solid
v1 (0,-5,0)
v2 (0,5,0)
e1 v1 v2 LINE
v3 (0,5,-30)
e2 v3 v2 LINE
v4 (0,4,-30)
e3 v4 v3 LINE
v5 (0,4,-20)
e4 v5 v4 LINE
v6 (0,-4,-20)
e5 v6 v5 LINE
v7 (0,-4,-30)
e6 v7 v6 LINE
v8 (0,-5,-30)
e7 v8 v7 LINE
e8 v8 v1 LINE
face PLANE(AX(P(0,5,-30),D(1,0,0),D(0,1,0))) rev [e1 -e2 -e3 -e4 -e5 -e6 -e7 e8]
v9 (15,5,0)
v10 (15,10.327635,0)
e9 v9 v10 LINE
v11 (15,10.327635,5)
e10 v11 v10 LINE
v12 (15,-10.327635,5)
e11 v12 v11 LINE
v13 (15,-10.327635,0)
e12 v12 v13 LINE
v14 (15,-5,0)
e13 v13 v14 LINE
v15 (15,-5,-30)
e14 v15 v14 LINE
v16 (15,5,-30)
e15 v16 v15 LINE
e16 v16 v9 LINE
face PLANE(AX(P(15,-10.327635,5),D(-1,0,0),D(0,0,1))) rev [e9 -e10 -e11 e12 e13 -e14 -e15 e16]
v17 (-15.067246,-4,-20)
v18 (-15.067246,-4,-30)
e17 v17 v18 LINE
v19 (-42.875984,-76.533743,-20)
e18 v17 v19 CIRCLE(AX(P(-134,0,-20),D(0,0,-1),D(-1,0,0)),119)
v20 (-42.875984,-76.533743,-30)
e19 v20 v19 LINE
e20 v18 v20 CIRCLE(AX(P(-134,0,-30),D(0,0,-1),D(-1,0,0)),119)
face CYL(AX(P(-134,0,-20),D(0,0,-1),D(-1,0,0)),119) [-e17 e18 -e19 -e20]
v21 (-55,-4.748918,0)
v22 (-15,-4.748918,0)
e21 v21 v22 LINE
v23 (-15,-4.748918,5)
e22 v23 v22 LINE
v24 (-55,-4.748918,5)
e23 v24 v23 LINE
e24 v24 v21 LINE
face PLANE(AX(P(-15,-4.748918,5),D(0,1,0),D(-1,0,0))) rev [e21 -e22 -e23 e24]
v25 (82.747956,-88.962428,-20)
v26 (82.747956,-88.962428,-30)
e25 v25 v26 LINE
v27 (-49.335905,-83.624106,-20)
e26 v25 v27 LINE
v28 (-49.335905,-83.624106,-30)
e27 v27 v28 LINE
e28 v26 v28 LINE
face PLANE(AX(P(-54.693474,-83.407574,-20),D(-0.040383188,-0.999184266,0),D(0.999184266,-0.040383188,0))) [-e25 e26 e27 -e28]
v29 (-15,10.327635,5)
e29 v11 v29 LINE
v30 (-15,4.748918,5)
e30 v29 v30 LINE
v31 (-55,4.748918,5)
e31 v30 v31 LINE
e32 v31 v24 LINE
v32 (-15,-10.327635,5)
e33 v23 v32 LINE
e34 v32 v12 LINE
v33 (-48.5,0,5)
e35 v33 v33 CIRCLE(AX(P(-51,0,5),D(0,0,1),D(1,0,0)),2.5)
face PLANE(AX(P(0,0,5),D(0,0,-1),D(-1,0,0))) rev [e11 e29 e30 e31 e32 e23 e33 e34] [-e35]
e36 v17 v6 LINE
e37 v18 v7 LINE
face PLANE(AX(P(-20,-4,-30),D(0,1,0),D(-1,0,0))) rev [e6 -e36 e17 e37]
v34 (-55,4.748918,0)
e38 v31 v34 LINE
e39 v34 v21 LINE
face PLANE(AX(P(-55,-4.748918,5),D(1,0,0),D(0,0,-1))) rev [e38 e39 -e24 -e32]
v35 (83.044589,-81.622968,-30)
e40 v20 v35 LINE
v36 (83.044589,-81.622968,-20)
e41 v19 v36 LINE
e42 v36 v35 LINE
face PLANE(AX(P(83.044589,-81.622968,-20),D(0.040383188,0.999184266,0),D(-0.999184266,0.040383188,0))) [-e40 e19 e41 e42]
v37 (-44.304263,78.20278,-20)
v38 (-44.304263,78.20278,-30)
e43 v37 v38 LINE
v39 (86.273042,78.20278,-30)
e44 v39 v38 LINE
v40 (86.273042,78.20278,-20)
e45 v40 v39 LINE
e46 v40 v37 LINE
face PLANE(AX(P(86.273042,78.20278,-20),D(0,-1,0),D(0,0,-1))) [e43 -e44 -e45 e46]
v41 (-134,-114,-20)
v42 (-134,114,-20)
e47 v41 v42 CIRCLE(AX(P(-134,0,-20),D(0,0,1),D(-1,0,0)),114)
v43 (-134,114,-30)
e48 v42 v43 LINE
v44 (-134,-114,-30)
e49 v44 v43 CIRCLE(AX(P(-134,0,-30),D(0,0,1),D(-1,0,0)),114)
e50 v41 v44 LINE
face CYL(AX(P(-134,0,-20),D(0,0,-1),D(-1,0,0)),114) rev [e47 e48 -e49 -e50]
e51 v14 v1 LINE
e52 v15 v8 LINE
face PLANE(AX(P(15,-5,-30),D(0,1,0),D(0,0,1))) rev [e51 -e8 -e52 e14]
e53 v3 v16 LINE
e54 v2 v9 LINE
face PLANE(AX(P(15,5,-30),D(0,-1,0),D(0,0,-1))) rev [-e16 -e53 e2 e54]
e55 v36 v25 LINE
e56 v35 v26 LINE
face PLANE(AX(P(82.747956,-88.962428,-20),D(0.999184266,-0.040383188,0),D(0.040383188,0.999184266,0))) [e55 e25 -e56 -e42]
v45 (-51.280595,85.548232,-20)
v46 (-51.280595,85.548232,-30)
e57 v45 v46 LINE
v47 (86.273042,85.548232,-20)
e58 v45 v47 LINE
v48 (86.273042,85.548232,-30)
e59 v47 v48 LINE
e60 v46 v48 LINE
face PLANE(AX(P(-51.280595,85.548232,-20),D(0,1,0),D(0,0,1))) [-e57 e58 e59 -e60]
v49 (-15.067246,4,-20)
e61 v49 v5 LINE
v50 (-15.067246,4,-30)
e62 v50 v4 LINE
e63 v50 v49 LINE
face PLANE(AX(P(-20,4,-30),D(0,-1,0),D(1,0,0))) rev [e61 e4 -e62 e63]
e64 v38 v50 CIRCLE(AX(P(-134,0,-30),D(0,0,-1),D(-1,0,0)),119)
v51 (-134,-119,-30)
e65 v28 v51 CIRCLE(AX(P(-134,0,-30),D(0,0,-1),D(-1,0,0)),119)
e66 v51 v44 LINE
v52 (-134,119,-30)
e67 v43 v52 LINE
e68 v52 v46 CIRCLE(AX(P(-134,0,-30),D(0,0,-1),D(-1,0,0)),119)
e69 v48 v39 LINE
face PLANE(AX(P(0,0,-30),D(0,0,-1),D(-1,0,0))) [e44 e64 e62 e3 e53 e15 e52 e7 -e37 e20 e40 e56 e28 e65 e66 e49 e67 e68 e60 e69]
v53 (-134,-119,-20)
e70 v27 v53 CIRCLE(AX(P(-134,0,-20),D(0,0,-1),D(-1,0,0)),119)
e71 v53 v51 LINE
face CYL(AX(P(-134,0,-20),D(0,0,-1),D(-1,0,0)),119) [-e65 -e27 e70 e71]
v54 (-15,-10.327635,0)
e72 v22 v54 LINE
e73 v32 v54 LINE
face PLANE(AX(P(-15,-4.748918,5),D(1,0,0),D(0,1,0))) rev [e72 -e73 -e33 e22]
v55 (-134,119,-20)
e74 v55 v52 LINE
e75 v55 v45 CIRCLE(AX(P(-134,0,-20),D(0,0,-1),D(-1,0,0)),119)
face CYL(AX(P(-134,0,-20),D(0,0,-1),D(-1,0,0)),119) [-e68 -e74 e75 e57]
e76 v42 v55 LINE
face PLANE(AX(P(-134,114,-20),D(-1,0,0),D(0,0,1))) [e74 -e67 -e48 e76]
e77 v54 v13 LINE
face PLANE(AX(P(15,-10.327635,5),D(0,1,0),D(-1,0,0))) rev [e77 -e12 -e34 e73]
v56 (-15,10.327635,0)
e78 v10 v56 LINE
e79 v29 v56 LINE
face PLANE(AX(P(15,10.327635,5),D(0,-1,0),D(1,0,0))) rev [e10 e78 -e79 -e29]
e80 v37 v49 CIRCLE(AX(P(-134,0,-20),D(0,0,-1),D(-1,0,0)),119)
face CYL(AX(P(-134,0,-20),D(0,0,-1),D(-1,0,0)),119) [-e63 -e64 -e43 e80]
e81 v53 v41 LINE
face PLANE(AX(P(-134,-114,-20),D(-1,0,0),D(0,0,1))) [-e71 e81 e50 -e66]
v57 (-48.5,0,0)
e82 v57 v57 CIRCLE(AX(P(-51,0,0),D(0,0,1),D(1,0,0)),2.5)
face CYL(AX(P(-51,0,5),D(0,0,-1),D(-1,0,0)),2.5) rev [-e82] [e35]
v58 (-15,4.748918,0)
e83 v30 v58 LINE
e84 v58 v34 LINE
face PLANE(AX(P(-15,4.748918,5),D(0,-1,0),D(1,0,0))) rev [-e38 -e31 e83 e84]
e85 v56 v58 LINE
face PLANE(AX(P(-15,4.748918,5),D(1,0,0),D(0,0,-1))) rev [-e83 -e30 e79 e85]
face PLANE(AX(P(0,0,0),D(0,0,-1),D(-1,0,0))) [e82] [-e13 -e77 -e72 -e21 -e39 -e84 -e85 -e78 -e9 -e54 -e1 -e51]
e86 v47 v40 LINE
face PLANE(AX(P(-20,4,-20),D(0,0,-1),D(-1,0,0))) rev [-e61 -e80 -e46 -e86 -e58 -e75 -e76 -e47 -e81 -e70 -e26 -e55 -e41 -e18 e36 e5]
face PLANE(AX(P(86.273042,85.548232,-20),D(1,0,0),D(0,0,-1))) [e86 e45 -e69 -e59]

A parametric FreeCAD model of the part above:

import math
import FreeCAD as App
import Part
import Sketcher

V = App.Vector


def add_polygon(sketch, points):
    """Adds a closed chain of lines whose ends are joined by coincident constraints."""
    first, n = sketch.GeometryCount, len(points)
    for a, b in zip(points, points[1:] + points[:1]):
        sketch.addGeometry(Part.LineSegment(App.Vector(*a, 0), App.Vector(*b, 0)), False)
    for i in range(n):
        sketch.addConstraint(Sketcher.Constraint("Coincident", first + i, 2, first + (i + 1) % n, 1))

doc = App.newDocument("Part")
body = doc.addObject("PartDesign::Body", "Body")

# Sketch on XY plane
sketch1 = body.newObject("Sketcher::SketchObject", "Sketch")
sketch1.AttachmentSupport = (doc.getObject("XY_Plane"), [""])
sketch1.MapMode = "FlatFace"
add_polygon(sketch1, [(-15, 10.327635), (-15, 4.748918), (-55, 4.748918), (-55, -4.748918), (-15, -4.748918), (-15, -10.327635), (15, -10.327635), (15, 10.327635)])  # lines 0-7
sketch1.addGeometry(Part.Circle(V(-51, 0, 0), V(0, 0, 1), 2.5), False)  # 8
sketch1.addConstraint(Sketcher.Constraint("Vertical", 0))
sketch1.addConstraint(Sketcher.Constraint("Horizontal", 1))
sketch1.addConstraint(Sketcher.Constraint("Vertical", 2))
sketch1.addConstraint(Sketcher.Constraint("Horizontal", 3))
sketch1.addConstraint(Sketcher.Constraint("Vertical", 4))
sketch1.addConstraint(Sketcher.Constraint("Horizontal", 5))
sketch1.addConstraint(Sketcher.Constraint("Vertical", 6))
sketch1.addConstraint(Sketcher.Constraint("Horizontal", 7))
sketch1.addConstraint(Sketcher.Constraint("Symmetric", 4, 2, 6, 2, -1, 1))
sketch1.addConstraint(Sketcher.Constraint("Symmetric", 0, 2, 3, 2, -1))
sketch1.addConstraint(Sketcher.Constraint("PointOnObject", 8, 3, -1))
sketch1.addConstraint(Sketcher.Constraint("Diameter", 8, 5.0))
sketch1.addConstraint(Sketcher.Constraint("DistanceX", 1, 2, 1, 1, 40.0))
sketch1.addConstraint(Sketcher.Constraint("DistanceX", 5, 1, 5, 2, 30.0))
sketch1.addConstraint(Sketcher.Constraint("DistanceX", 8, 3, -1, 1, 51.0))
sketch1.addConstraint(Sketcher.Constraint("DistanceY", 6, 1, 6, 2, 20.655271))
sketch1.addConstraint(Sketcher.Constraint("DistanceY", 0, 2, 0, 1, 5.578717))
pad1 = body.newObject("PartDesign::Pad", "Pad")
pad1.Profile = sketch1
pad1.Length = 5

# Sketch on XY plane
sketch2 = body.newObject("Sketcher::SketchObject", "Sketch001")
sketch2.AttachmentSupport = (doc.getObject("XY_Plane"), [""])
sketch2.MapMode = "FlatFace"
add_polygon(sketch2, [(15, 5), (15, -5), (0, -5), (0, 5)])  # lines 0-3
sketch2.addConstraint(Sketcher.Constraint("Vertical", 0))
sketch2.addConstraint(Sketcher.Constraint("Horizontal", 1))
sketch2.addConstraint(Sketcher.Constraint("Vertical", 2))
sketch2.addConstraint(Sketcher.Constraint("Horizontal", 3))
sketch2.addConstraint(Sketcher.Constraint("Symmetric", 1, 2, 2, 2, -1, 1))
sketch2.addConstraint(Sketcher.Constraint("DistanceX", 1, 2, 1, 1, 15.0))
sketch2.addConstraint(Sketcher.Constraint("DistanceY", 0, 2, 0, 1, 10.0))
pad2 = body.newObject("PartDesign::Pad", "Pad001")
pad2.Profile = sketch2
pad2.Length = 30
pad2.Reversed = True

# Sketch on YZ plane
sketch3 = body.newObject("Sketcher::SketchObject", "Sketch002")
sketch3.AttachmentSupport = (doc.getObject("YZ_Plane"), [""])
sketch3.MapMode = "FlatFace"
add_polygon(sketch3, [(4, -30), (-4, -30), (-4, -20), (4, -20)])  # lines 0-3
sketch3.addConstraint(Sketcher.Constraint("Horizontal", 0))
sketch3.addConstraint(Sketcher.Constraint("Vertical", 1))
sketch3.addConstraint(Sketcher.Constraint("Horizontal", 2))
sketch3.addConstraint(Sketcher.Constraint("Vertical", 3))
sketch3.addConstraint(Sketcher.Constraint("DistanceX", 0, 2, 0, 1, 8.0))
sketch3.addConstraint(Sketcher.Constraint("DistanceY", 1, 1, 1, 2, 10.0))
sketch3.addConstraint(Sketcher.Constraint("DistanceX", 0, 2, -1, 1, 4.0))
sketch3.addConstraint(Sketcher.Constraint("DistanceY", 0, 2, -1, 1, 30.0))
pad3 = body.newObject("PartDesign::Pad", "Pad002")
pad3.Profile = sketch3
pad3.Length = 20
pad3.Reversed = True

# Sketch on XY plane
sketch4 = body.newObject("Sketcher::SketchObject", "Sketch003")
sketch4.AttachmentSupport = (doc.getObject("XY_Plane"), [""])
sketch4.MapMode = "FlatFace"
sketch4.AttachmentOffset = App.Placement(V(0, 0, -30), App.Rotation())
sketch4.addGeometry(Part.LineSegment(V(-134, -119, 0), V(-134, -114, 0)), False)
sketch4.addGeometry(Part.ArcOfCircle(Part.Circle(V(-134, 0, 0), V(0, 0, 1), 114), math.radians(-90), math.radians(90)), False)
sketch4.addGeometry(Part.LineSegment(V(-134, 114, 0), V(-134, 119, 0)), False)
sketch4.addGeometry(Part.ArcOfCircle(Part.Circle(V(-134, 0, 0), V(0, 0, 1), 119), math.radians(-90), math.radians(90)), False)
sketch4.addConstraint(Sketcher.Constraint("Coincident", 0, 2, 1, 1))
sketch4.addConstraint(Sketcher.Constraint("Coincident", 1, 2, 2, 1))
sketch4.addConstraint(Sketcher.Constraint("Coincident", 2, 2, 3, 2))
sketch4.addConstraint(Sketcher.Constraint("Coincident", 3, 1, 0, 1))
sketch4.addConstraint(Sketcher.Constraint("Vertical", 0))
sketch4.addConstraint(Sketcher.Constraint("Vertical", 2))
sketch4.addConstraint(Sketcher.Constraint("Coincident", 3, 3, 1, 3))
sketch4.addConstraint(Sketcher.Constraint("Symmetric", 0, 2, 1, 2, -1))
sketch4.addConstraint(Sketcher.Constraint("Vertical", 3, 3, 0, 2))
sketch4.addConstraint(Sketcher.Constraint("Radius", 1, 114.0))
sketch4.addConstraint(Sketcher.Constraint("Radius", 3, 119.0))
sketch4.addConstraint(Sketcher.Constraint("DistanceX", 1, 3, -1, 1, 134.0))
pad4 = body.newObject("PartDesign::Pad", "Pad003")
pad4.Profile = sketch4
pad4.Length = 10

# Sketch on XY plane
sketch5 = body.newObject("Sketcher::SketchObject", "Sketch004")
sketch5.AttachmentSupport = (doc.getObject("XY_Plane"), [""])
sketch5.MapMode = "FlatFace"
sketch5.AttachmentOffset = App.Placement(V(0, 0, -30), App.Rotation())
sketch5.addGeometry(Part.LineSegment(V(-51.280595, 85.548232, 0), V(86.273042, 85.548232, 0)), False)
sketch5.addGeometry(Part.LineSegment(V(86.273042, 85.548232, 0), V(86.273042, 78.20278, 0)), False)
sketch5.addGeometry(Part.LineSegment(V(86.273042, 78.20278, 0), V(-44.304263, 78.20278, 0)), False)
sketch5.addGeometry(Part.ArcOfCircle(Part.Circle(V(-134, 0, 0), V(0, 0, 1), 119), math.radians(41.084109), math.radians(45.963136)), False)
sketch5.addGeometry(Part.LineSegment(V(-47.426201, -76.34984, 0), V(83.044589, -81.622968, 0)), False)
sketch5.addGeometry(Part.LineSegment(V(83.044589, -81.622968, 0), V(82.747956, -88.962428, 0)), False)
sketch5.addGeometry(Part.LineSegment(V(82.747956, -88.962428, 0), V(-54.693474, -83.407574, 0)), False)
sketch5.addGeometry(Part.ArcOfCircle(Part.Circle(V(-133.890692, 5.411347, 0), V(0, 0, 1), 119), math.radians(-48.277551), math.radians(-43.398525)), False)
sketch5.addConstraint(Sketcher.Constraint("Coincident", 0, 2, 1, 1))
sketch5.addConstraint(Sketcher.Constraint("Coincident", 1, 2, 2, 1))
sketch5.addConstraint(Sketcher.Constraint("Coincident", 2, 2, 3, 1))
sketch5.addConstraint(Sketcher.Constraint("Coincident", 3, 2, 0, 1))
sketch5.addConstraint(Sketcher.Constraint("Coincident", 4, 2, 5, 1))
sketch5.addConstraint(Sketcher.Constraint("Coincident", 5, 2, 6, 1))
sketch5.addConstraint(Sketcher.Constraint("Coincident", 6, 2, 7, 1))
sketch5.addConstraint(Sketcher.Constraint("Coincident", 7, 2, 4, 1))
sketch5.addConstraint(Sketcher.Constraint("Horizontal", 0))
sketch5.addConstraint(Sketcher.Constraint("Vertical", 1))
sketch5.addConstraint(Sketcher.Constraint("Horizontal", 2))
sketch5.addConstraint(Sketcher.Constraint("Equal", 3, 7))
sketch5.addConstraint(Sketcher.Constraint("PointOnObject", 3, 3, -1))
sketch5.addConstraint(Sketcher.Constraint("Perpendicular", 4, 5))
sketch5.addConstraint(Sketcher.Constraint("Perpendicular", 5, 6))
sketch5.addConstraint(Sketcher.Constraint("Radius", 3, 119.0))
sketch5.addConstraint(Sketcher.Constraint("DistanceX", 3, 3, -1, 1, 134.0))
sketch5.addConstraint(Sketcher.Constraint("DistanceY", 1, 2, 1, 1, 7.345452))
sketch5.addConstraint(Sketcher.Constraint("DistanceX", 7, 2, -1, 1, 47.426201))
sketch5.addConstraint(Sketcher.Constraint("DistanceY", 4, 2, 0, 2, 167.1712))
sketch5.addConstraint(Sketcher.Constraint("Distance", 5, 7.345452))
sketch5.addConstraint(Sketcher.Constraint("DistanceX", 0, 1, 0, 2, 137.553637))
sketch5.addConstraint(Sketcher.Constraint("DistanceX", 2, 2, 2, 1, 130.577306))
sketch5.addConstraint(Sketcher.Constraint("DistanceX", 7, 3, -1, 1, 133.890692))
sketch5.addConstraint(Sketcher.Constraint("DistanceX", -1, 1, 4, 2, 83.044589))
sketch5.addConstraint(Sketcher.Constraint("DistanceY", 7, 2, -1, 1, 76.34984))
pad5 = body.newObject("PartDesign::Pad", "Pad004")
pad5.Profile = sketch5
pad5.Length = 10

doc.recompute()
